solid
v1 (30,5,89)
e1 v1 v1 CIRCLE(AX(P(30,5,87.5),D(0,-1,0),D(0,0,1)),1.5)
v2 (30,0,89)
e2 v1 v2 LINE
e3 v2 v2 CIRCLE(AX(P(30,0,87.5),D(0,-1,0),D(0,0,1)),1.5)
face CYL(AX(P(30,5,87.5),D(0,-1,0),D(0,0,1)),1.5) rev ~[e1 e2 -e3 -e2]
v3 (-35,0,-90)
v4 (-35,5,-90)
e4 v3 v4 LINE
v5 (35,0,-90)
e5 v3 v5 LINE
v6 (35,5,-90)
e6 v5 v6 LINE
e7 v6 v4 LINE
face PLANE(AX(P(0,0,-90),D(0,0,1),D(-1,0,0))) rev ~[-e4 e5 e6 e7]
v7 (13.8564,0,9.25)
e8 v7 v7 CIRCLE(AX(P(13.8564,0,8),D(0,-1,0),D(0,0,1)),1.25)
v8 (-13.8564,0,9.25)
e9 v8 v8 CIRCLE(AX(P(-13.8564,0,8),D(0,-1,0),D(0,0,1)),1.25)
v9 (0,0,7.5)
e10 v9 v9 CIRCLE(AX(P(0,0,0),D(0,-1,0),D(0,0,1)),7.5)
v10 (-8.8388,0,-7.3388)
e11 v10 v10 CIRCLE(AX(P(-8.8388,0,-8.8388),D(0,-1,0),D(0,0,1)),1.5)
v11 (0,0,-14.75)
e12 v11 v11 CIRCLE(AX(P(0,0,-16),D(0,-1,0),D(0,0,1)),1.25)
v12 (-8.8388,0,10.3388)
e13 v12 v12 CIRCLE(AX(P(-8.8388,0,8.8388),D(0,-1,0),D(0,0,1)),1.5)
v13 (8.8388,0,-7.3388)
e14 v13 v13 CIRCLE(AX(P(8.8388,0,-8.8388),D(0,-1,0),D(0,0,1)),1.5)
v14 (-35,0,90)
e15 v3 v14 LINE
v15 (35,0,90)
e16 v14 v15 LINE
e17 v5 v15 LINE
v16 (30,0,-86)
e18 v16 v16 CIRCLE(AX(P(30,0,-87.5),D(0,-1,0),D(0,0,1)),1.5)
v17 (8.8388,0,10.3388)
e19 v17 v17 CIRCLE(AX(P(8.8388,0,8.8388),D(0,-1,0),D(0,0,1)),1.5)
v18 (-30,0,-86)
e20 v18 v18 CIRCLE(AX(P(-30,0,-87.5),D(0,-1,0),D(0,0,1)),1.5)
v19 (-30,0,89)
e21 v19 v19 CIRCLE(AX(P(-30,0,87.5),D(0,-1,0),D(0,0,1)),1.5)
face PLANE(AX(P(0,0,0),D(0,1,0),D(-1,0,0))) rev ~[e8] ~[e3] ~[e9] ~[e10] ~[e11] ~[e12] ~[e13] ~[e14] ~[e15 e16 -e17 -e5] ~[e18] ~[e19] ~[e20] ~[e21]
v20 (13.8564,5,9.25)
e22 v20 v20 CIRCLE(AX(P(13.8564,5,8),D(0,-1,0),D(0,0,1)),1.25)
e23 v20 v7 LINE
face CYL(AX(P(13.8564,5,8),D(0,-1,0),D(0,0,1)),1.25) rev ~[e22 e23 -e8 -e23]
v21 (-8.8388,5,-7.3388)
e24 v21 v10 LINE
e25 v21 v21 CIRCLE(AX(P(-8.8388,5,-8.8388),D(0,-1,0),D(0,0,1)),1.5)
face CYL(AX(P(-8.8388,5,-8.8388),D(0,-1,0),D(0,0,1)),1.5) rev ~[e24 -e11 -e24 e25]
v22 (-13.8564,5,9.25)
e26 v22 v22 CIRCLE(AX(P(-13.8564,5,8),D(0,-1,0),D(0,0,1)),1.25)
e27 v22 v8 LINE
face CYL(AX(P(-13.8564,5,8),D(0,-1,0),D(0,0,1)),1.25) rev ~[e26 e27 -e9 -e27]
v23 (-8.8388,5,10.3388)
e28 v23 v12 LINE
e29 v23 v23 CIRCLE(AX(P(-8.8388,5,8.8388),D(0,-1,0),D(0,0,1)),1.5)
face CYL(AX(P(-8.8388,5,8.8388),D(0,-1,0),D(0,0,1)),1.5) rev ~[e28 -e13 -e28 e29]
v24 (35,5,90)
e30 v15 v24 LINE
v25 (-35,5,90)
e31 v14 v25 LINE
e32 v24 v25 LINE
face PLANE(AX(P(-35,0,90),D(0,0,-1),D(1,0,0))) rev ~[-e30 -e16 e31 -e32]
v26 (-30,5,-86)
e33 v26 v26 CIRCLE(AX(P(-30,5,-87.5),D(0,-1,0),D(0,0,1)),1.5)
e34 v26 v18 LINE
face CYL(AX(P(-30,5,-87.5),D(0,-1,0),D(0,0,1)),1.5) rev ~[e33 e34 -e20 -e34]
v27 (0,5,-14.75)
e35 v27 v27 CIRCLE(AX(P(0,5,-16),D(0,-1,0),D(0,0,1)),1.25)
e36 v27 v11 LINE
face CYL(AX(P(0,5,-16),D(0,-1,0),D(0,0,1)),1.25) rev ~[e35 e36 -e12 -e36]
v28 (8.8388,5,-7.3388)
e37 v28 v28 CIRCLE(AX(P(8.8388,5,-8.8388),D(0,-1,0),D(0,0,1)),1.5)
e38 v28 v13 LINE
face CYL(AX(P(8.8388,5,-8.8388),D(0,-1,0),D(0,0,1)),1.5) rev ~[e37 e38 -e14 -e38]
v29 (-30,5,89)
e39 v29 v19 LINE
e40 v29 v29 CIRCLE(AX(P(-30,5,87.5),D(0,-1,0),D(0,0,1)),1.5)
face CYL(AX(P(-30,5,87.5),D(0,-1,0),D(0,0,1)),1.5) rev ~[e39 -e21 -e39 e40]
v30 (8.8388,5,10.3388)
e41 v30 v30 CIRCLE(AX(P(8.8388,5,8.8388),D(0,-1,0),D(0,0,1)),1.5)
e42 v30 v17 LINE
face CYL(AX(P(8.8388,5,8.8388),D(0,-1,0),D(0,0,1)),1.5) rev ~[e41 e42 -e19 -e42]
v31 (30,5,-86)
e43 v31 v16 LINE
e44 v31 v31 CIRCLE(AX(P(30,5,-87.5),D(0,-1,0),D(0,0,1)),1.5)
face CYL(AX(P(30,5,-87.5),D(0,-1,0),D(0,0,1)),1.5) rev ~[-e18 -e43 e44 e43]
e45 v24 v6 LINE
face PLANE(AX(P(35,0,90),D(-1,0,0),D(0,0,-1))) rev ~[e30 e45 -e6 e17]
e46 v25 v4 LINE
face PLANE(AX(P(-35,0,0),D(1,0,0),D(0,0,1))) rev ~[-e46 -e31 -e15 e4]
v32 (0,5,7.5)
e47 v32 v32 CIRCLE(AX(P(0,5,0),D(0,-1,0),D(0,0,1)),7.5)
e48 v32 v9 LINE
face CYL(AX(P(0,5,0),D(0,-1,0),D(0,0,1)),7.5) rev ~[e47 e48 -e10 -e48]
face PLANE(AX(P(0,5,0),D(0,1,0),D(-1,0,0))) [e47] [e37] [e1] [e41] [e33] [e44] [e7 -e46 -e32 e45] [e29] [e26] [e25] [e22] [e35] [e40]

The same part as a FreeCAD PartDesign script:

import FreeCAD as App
import Part
import Sketcher

V = App.Vector


def add_polygon(sketch, points):
    """Adds a closed chain of lines whose ends are joined by coincident constraints."""
    first, n = sketch.GeometryCount, len(points)
    for a, b in zip(points, points[1:] + points[:1]):
        sketch.addGeometry(Part.LineSegment(App.Vector(*a, 0), App.Vector(*b, 0)), False)
    for i in range(n):
        sketch.addConstraint(Sketcher.Constraint("Coincident", first + i, 2, first + (i + 1) % n, 1))

doc = App.newDocument("Part")
body = doc.addObject("PartDesign::Body", "Body")

# Sketch on XZ plane
sketch1 = body.newObject("Sketcher::SketchObject", "Sketch")
sketch1.AttachmentSupport = (doc.getObject("XZ_Plane"), [""])
sketch1.MapMode = "FlatFace"
add_polygon(sketch1, [(-35, 90), (35, 90), (35, -90), (-35, -90)])  # lines 0-3
sketch1.addConstraint(Sketcher.Constraint("Horizontal", 0))
sketch1.addConstraint(Sketcher.Constraint("Vertical", 1))
sketch1.addConstraint(Sketcher.Constraint("Horizontal", 2))
sketch1.addConstraint(Sketcher.Constraint("Vertical", 3))
sketch1.addConstraint(Sketcher.Constraint("Symmetric", 0, 2, 2, 2, -1, 1))
sketch1.addConstraint(Sketcher.Constraint("DistanceX", 0, 1, 0, 2, 70.0))
sketch1.addConstraint(Sketcher.Constraint("DistanceY", 1, 2, 1, 1, 180.0))
pad1 = body.newObject("PartDesign::Pad", "Pad")
pad1.Profile = sketch1
pad1.Length = 5
pad1.Reversed = True

# Sketch on XZ plane
sketch2 = body.newObject("Sketcher::SketchObject", "Sketch001")
sketch2.AttachmentSupport = (doc.getObject("XZ_Plane"), [""])
sketch2.MapMode = "FlatFace"
sketch2.AttachmentOffset = App.Placement(V(0, 0, -5), App.Rotation())
sketch2.addGeometry(Part.Circle(V(-30, -87.5, 0), V(0, 0, 1), 1.5), False)
sketch2.addGeometry(Part.Circle(V(30, 87.5, 0), V(0, 0, 1), 1.5), False)
sketch2.addGeometry(Part.Circle(V(30, -87.5, 0), V(0, 0, 1), 1.5), False)
sketch2.addGeometry(Part.Circle(V(-30, 87.5, 0), V(0, 0, 1), 1.5), False)
sketch2.addConstraint(Sketcher.Constraint("Equal", 0, 1))
sketch2.addConstraint(Sketcher.Constraint("Equal", 1, 2))
sketch2.addConstraint(Sketcher.Constraint("Equal", 2, 3))
sketch2.addConstraint(Sketcher.Constraint("Symmetric", 0, 3, 1, 3, -1, 1))
sketch2.addConstraint(Sketcher.Constraint("Symmetric", 2, 3, 3, 3, -1, 1))
sketch2.addConstraint(Sketcher.Constraint("Symmetric", 0, 3, 2, 3, -2))
sketch2.addConstraint(Sketcher.Constraint("Diameter", 0, 3.0))
sketch2.addConstraint(Sketcher.Constraint("DistanceX", 0, 3, -1, 1, 30.0))
sketch2.addConstraint(Sketcher.Constraint("DistanceY", 0, 3, 1, 3, 175.0))
doc.recompute()
hole = body.newObject("PartDesign::Hole", "Hole")
hole.Profile = sketch2
hole.ThreadType = "None"
hole.Diameter = 3
hole.DepthType = "Dimension"
hole.Depth = 8.8
hole.DrillPoint = "Angled"
hole.DrillPointAngle = 118
hole.Reversed = True

# Sketch on XZ plane
sketch3 = body.newObject("Sketcher::SketchObject", "Sketch002")
sketch3.AttachmentSupport = (doc.getObject("XZ_Plane"), [""])
sketch3.MapMode = "FlatFace"
sketch3.AttachmentOffset = App.Placement(V(0, 0, -5), App.Rotation())
sketch3.addGeometry(Part.Circle(V(0, 0, 0), V(0, 0, 1), 8), False)
sketch3.addConstraint(Sketcher.Constraint("Coincident", 0, 3, -1, 1))
sketch3.addConstraint(Sketcher.Constraint("Diameter", 0, 15.0))
doc.recompute()
hole2 = body.newObject("PartDesign::Hole", "Hole001")
hole2.Profile = sketch3
hole2.ThreadType = "None"
hole2.Diameter = 15
hole2.DepthType = "Dimension"
hole2.Depth = 14.2
hole2.DrillPoint = "Angled"
hole2.DrillPointAngle = 118
hole2.Reversed = True

# Sketch on XZ plane
sketch4 = body.newObject("Sketcher::SketchObject", "Sketch003")
sketch4.AttachmentSupport = (doc.getObject("XZ_Plane"), [""])
sketch4.MapMode = "FlatFace"
sketch4.AttachmentOffset = App.Placement(V(0, 0, -5), App.Rotation())
sketch4.addGeometry(Part.Circle(V(-8.8, 8.8, 0), V(0, 0, 1), 1.5), False)
sketch4.addGeometry(Part.Circle(V(-8.8, -8.8, 0), V(0, 0, 1), 1.5), False)
sketch4.addGeometry(Part.Circle(V(8.8, -8.8, 0), V(0, 0, 1), 1.5), False)
sketch4.addGeometry(Part.Circle(V(8.8, 8.8, 0), V(0, 0, 1), 1.5), False)
sketch4.addConstraint(Sketcher.Constraint("Equal", 0, 1))
sketch4.addConstraint(Sketcher.Constraint("Equal", 1, 2))
sketch4.addConstraint(Sketcher.Constraint("Equal", 2, 3))
sketch4.addConstraint(Sketcher.Constraint("Symmetric", 0, 3, 2, 3, -1, 1))
sketch4.addConstraint(Sketcher.Constraint("Symmetric", 1, 3, 3, 3, -1, 1))
sketch4.addConstraint(Sketcher.Constraint("Symmetric", 1, 3, 2, 3, -2))
sketch4.addConstraint(Sketcher.Constraint("Diameter", 0, 3.0))
sketch4.addConstraint(Sketcher.Constraint("DistanceX", 0, 3, -1, 1, 8.8388))
sketch4.addConstraint(Sketcher.Constraint("DistanceY", -1, 1, 0, 3, 8.8388))
doc.recompute()
hole3 = body.newObject("PartDesign::Hole", "Hole002")
hole3.Profile = sketch4
hole3.ThreadType = "None"
hole3.Diameter = 3
hole3.DepthType = "ThroughAll"
hole3.Reversed = True

# Sketch on XZ plane
sketch5 = body.newObject("Sketcher::SketchObject", "Sketch004")
sketch5.AttachmentSupport = (doc.getObject("XZ_Plane"), [""])
sketch5.MapMode = "FlatFace"
sketch5.AttachmentOffset = App.Placement(V(0, 0, -5), App.Rotation())
sketch5.addGeometry(Part.Circle(V(-13.9, 8, 0), V(0, 0, 1), 1.2), False)
sketch5.addGeometry(Part.Circle(V(13.9, 8, 0), V(0, 0, 1), 1.2), False)
sketch5.addGeometry(Part.Circle(V(0, -16, 0), V(0, 0, 1), 1.2), False)
sketch5.addConstraint(Sketcher.Constraint("Equal", 0, 1))
sketch5.addConstraint(Sketcher.Constraint("Equal", 1, 2))
sketch5.addConstraint(Sketcher.Constraint("Symmetric", 0, 3, 1, 3, -2))
sketch5.addConstraint(Sketcher.Constraint("PointOnObject", 2, 3, -2))
sketch5.addConstraint(Sketcher.Constraint("Diameter", 0, 2.5))
sketch5.addConstraint(Sketcher.Constraint("DistanceY", -1, 1, 0, 3, 8.0))
sketch5.addConstraint(Sketcher.Constraint("DistanceY", 2, 3, -1, 1, 16.0))
sketch5.addConstraint(Sketcher.Constraint("DistanceX", 0, 3, -1, 1, 13.8564))
doc.recompute()
hole4 = body.newObject("PartDesign::Hole", "Hole003")
hole4.Profile = sketch5
hole4.ThreadType = "None"
hole4.Diameter = 2.5
hole4.DepthType = "ThroughAll"
hole4.Reversed = True

doc.recompute()
